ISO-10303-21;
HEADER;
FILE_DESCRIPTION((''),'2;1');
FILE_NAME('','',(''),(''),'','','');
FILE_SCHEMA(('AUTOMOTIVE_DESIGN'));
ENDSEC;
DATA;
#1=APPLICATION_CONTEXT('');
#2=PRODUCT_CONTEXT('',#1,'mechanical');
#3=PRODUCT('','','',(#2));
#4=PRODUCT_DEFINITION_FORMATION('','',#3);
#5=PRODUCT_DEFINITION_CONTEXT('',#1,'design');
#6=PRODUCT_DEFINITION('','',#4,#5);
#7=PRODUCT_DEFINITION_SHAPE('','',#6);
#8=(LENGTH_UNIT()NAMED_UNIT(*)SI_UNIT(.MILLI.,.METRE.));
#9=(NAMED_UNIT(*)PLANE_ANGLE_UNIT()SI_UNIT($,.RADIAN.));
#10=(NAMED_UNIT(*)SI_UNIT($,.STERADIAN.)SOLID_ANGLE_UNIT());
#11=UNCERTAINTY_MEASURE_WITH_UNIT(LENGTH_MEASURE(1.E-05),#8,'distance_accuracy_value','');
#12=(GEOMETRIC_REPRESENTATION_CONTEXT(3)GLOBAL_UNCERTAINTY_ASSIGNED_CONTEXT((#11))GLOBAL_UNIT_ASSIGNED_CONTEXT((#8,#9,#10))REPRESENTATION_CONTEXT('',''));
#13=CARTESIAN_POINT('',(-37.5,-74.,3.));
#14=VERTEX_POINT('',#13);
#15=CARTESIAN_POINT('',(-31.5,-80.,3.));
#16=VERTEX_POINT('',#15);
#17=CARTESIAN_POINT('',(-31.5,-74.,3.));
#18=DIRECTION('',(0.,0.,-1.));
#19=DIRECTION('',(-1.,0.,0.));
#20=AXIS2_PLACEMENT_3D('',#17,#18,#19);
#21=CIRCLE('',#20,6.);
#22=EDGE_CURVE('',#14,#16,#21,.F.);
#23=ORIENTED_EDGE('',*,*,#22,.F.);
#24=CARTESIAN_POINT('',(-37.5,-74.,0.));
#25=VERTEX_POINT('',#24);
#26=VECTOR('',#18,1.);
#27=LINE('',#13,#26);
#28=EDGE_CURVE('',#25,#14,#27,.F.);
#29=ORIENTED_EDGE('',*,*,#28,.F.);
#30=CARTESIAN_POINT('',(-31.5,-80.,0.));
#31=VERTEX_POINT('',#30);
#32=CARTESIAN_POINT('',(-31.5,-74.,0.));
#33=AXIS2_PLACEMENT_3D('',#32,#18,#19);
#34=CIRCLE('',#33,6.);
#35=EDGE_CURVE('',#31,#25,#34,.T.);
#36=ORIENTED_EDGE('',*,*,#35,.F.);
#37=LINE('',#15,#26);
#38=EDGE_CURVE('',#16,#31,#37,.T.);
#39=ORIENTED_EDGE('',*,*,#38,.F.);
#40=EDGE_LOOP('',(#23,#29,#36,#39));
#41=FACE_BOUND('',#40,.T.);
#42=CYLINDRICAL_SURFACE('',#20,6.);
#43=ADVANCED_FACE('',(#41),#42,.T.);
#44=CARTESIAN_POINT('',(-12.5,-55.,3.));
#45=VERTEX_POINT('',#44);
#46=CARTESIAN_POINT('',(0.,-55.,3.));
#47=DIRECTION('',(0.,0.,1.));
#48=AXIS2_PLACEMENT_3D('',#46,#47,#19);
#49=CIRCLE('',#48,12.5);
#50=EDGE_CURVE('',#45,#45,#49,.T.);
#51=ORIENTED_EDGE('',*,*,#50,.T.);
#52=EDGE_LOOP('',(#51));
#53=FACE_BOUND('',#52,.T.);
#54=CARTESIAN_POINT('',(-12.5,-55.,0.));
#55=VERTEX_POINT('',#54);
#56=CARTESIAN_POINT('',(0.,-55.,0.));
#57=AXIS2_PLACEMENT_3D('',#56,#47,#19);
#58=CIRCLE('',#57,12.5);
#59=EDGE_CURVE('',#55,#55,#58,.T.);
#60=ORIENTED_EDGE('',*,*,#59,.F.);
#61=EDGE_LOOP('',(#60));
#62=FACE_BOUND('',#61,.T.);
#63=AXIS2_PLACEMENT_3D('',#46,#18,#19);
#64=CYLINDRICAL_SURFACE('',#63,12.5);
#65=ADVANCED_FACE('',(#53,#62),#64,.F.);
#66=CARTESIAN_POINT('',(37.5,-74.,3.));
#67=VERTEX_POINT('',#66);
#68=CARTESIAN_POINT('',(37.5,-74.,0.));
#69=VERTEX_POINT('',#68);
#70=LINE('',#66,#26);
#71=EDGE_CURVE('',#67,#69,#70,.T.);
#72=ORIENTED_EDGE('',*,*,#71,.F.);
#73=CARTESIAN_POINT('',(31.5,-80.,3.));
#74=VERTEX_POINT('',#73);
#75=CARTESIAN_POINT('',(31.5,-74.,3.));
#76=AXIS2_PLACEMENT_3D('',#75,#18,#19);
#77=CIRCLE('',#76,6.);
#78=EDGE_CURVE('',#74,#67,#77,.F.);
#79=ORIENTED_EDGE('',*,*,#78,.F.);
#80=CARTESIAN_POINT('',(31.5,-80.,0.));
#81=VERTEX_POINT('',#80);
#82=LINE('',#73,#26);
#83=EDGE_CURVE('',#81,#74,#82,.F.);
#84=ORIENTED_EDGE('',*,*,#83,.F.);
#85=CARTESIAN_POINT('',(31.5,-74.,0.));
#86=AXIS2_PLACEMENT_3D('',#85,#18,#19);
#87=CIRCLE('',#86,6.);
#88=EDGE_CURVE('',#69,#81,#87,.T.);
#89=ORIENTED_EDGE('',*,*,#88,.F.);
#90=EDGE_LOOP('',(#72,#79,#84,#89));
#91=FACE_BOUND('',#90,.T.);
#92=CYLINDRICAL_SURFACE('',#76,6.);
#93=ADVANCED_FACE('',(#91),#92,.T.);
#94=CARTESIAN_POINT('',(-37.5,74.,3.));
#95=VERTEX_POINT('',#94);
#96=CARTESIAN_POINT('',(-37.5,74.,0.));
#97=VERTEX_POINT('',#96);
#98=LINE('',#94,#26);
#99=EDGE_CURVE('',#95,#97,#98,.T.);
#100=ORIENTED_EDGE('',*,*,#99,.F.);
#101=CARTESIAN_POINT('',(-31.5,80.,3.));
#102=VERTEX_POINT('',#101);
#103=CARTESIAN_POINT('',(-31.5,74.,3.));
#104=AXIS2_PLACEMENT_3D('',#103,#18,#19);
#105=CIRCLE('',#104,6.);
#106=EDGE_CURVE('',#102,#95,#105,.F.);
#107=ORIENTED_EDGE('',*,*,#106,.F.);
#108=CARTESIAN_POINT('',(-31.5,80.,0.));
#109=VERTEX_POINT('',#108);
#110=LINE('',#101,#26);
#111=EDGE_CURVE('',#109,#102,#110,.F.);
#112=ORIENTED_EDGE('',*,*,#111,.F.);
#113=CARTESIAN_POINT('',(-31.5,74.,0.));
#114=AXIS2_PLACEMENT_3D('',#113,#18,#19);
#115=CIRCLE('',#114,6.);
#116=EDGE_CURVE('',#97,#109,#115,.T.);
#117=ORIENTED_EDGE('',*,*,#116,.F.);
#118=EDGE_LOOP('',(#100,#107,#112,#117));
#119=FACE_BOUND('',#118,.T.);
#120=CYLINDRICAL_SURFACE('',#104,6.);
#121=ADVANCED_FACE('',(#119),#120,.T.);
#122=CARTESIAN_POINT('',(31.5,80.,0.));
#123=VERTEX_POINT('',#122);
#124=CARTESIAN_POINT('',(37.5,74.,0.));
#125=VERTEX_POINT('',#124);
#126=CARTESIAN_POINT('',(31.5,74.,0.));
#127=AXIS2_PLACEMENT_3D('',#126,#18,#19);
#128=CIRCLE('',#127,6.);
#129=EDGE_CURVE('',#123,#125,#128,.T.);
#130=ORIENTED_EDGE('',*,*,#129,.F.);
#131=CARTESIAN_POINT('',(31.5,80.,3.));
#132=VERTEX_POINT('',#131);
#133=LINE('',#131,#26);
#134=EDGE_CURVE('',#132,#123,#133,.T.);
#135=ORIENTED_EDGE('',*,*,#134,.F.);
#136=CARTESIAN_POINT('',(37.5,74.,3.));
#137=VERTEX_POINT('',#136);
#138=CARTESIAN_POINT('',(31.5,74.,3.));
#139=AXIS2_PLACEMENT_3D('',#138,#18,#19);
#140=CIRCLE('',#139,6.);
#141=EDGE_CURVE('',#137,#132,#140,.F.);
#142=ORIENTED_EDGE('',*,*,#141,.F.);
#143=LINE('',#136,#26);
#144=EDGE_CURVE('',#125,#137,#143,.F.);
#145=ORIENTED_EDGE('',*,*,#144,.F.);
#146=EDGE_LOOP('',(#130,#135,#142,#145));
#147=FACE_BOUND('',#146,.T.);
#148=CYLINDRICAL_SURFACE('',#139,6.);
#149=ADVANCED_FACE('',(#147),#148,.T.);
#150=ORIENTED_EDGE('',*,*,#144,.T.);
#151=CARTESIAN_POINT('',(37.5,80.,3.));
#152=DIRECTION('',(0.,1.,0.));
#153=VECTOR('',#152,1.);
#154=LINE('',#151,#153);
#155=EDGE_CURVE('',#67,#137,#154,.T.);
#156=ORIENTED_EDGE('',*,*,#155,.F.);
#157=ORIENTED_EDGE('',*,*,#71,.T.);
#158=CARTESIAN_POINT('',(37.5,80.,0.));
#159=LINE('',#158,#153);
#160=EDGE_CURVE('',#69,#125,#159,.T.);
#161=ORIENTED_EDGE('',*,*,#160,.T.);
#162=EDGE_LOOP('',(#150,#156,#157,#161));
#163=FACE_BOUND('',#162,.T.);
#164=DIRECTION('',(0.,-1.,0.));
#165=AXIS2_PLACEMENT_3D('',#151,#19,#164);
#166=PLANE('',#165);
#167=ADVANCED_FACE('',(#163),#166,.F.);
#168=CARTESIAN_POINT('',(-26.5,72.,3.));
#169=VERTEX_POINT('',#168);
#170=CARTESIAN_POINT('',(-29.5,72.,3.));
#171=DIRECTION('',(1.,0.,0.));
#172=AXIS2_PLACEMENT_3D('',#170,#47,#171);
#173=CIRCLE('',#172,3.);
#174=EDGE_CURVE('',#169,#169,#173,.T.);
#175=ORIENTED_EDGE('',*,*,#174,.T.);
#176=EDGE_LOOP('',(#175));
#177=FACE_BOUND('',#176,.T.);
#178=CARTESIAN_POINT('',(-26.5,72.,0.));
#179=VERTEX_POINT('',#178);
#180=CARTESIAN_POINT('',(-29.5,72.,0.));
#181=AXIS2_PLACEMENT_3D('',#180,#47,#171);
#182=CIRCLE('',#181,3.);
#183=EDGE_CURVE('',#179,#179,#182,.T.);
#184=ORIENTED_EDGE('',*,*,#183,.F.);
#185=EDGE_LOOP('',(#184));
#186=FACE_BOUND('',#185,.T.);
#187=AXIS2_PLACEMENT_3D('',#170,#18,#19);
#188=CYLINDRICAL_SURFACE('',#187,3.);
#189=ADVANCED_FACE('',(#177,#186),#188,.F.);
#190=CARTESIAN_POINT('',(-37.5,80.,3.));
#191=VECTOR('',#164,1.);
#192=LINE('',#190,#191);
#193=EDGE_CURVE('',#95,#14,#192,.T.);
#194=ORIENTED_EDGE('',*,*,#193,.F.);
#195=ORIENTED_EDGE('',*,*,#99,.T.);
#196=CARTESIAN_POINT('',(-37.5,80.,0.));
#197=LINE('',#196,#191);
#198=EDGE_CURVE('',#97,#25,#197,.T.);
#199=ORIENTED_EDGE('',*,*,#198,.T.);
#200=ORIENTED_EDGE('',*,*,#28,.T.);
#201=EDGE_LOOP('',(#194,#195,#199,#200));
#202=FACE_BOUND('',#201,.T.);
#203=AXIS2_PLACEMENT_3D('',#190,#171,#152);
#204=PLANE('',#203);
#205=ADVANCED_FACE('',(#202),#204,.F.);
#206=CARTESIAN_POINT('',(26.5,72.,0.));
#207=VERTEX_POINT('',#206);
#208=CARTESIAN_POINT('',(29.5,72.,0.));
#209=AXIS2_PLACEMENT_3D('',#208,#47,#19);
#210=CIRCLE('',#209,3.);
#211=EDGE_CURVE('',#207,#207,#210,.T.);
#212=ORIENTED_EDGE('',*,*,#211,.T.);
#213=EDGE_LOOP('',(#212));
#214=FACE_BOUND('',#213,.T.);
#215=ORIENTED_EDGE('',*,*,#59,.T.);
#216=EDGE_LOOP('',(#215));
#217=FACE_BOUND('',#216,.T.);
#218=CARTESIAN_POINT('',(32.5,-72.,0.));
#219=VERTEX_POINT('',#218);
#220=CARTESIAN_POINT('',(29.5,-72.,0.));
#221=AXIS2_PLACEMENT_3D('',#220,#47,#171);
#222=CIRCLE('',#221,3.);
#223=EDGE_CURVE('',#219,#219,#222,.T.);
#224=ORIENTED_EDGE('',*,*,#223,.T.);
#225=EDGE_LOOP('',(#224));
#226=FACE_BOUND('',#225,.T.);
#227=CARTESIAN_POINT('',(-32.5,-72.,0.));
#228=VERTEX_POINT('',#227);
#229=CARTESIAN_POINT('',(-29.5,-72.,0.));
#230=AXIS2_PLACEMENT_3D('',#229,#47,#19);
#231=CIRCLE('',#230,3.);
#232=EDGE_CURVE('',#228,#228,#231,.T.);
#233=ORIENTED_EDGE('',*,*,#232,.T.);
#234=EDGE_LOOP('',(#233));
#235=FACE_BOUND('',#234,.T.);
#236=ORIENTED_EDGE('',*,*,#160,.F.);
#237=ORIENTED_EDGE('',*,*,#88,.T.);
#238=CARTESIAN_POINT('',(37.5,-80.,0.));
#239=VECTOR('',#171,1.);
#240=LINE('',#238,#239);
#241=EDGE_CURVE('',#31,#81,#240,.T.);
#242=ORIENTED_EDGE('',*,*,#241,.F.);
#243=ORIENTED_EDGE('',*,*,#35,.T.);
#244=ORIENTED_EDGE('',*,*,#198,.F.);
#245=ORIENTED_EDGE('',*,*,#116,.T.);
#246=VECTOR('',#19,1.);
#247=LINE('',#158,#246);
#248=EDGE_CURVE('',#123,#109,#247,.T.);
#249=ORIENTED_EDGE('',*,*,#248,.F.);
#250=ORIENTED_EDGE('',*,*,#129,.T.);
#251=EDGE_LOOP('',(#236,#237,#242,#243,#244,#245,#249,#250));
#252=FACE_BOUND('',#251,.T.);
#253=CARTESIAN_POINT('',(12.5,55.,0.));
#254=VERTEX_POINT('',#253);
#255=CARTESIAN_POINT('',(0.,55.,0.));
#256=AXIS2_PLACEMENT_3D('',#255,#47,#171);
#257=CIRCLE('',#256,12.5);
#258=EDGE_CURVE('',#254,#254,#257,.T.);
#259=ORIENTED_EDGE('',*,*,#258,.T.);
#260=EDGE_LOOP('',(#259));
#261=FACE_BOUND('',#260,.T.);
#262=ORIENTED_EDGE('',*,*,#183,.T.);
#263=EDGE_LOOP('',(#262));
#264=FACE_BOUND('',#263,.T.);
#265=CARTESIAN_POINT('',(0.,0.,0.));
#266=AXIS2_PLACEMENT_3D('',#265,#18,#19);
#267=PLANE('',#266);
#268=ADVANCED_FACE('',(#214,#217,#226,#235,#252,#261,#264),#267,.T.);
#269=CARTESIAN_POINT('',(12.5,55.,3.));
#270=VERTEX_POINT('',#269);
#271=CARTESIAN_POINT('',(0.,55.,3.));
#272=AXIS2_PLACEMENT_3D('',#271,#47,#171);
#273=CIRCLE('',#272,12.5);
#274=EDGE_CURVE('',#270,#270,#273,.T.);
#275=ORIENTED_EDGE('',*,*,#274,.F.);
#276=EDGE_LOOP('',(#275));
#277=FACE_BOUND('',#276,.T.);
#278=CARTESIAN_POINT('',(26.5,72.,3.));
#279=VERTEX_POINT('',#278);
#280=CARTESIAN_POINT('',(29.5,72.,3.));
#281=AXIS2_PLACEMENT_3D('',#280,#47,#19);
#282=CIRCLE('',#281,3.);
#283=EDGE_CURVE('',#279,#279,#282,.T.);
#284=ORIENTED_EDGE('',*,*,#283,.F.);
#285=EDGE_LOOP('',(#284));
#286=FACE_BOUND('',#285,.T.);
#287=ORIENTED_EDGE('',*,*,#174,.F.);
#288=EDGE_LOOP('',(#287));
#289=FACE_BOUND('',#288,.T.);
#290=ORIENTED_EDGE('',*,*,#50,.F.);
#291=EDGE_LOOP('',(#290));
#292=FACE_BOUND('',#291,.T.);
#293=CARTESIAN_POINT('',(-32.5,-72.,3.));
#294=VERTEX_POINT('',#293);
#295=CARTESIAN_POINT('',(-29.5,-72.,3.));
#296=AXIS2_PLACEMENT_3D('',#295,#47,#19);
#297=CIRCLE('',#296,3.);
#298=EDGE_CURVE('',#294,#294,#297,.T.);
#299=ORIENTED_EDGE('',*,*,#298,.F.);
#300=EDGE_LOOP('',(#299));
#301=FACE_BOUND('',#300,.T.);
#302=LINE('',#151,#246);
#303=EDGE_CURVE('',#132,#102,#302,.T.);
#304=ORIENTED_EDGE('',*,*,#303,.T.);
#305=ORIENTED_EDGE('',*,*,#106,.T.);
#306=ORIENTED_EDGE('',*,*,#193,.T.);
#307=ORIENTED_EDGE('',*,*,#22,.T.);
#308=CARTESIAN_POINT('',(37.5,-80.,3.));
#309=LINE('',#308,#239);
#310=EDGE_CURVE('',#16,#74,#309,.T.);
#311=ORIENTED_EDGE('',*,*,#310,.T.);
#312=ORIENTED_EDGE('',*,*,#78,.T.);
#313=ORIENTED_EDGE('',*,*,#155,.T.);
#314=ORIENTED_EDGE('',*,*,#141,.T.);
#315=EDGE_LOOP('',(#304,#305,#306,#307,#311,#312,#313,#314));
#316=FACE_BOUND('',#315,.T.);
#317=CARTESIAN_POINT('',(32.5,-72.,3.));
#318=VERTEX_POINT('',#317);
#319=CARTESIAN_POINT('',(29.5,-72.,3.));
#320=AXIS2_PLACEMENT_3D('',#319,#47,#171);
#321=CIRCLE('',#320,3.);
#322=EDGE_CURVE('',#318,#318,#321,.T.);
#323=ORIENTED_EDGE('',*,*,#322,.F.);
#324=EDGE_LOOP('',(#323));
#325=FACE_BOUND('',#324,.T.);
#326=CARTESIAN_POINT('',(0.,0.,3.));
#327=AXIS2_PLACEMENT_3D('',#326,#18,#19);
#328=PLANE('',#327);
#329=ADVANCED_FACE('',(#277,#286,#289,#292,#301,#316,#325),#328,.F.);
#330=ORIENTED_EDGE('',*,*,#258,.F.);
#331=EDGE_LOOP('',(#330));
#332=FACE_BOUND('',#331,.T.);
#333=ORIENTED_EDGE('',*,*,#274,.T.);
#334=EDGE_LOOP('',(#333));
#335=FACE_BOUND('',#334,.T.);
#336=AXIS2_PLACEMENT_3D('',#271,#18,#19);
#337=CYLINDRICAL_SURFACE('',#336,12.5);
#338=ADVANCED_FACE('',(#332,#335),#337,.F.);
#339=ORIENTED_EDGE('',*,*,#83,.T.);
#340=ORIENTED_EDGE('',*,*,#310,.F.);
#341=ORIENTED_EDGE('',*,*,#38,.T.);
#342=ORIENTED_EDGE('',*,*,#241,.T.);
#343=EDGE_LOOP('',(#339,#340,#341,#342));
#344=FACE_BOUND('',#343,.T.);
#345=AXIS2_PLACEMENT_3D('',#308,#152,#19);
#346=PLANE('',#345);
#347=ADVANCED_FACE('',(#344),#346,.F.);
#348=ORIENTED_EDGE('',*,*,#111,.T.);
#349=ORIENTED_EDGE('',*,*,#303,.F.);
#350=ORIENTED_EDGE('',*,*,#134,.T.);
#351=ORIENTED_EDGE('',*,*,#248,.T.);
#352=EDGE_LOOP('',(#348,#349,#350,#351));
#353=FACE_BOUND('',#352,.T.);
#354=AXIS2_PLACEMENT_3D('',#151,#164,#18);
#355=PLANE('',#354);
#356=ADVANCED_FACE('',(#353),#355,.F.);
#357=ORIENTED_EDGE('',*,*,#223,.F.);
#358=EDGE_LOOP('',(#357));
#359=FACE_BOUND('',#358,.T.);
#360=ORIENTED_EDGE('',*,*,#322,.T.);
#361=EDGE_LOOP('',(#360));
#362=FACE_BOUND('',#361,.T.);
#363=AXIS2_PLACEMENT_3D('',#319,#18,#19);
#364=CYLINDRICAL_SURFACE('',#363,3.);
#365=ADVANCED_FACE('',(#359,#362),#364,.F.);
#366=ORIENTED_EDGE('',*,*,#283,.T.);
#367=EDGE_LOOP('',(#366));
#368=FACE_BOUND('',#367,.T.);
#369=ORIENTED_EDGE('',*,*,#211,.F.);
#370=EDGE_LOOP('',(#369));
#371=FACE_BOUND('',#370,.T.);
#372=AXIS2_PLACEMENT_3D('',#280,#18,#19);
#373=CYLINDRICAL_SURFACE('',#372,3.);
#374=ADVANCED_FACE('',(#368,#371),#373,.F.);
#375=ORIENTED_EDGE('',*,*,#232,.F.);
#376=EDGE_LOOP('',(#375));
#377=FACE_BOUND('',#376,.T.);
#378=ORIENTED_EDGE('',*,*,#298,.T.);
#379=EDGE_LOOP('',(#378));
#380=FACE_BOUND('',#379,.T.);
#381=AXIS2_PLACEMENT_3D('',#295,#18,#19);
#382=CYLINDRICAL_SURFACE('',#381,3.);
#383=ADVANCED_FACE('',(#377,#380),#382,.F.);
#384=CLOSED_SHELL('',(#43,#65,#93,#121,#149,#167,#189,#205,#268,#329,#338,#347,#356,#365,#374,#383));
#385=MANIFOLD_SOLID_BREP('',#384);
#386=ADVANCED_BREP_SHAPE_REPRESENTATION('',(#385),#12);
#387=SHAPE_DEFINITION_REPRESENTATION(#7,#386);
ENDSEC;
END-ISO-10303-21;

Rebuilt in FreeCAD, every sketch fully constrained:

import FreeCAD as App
import Part
import Sketcher
Q = App.Units.Quantity


def edges_at(feature, points):
    """Names of the edges that pass closest to the given points."""
    edges = feature.Shape.Edges
    near = lambda p: min(range(len(edges)), key=lambda i: edges[i].distToShape(Part.Vertex(*p))[0])
    return sorted({f"Edge{near(p) + 1}" for p in points})

doc = App.newDocument("Part")
body = doc.addObject("PartDesign::Body", "Body")

# Sketch on XY plane
sketch1 = body.newObject("Sketcher::SketchObject", "Sketch")
sketch1.AttachmentSupport = (doc.getObject("XY_Plane"), [""])
sketch1.MapMode = "FlatFace"
sketch1.addGeometry([
    Part.LineSegment(App.Vector(-37.5, 80, 0), App.Vector(-37.5, -80, 0)),  # 0
    Part.LineSegment(App.Vector(-37.5, -80, 0), App.Vector(37.5, -80, 0)),  # 1
    Part.LineSegment(App.Vector(37.5, -80, 0), App.Vector(37.5, 80, 0)),  # 2
    Part.LineSegment(App.Vector(37.5, 80, 0), App.Vector(-37.5, 80, 0)),  # 3
    Part.Circle(App.Vector(-29.5, -72, 0), App.Vector(0, 0, 1), 3),  # 4
    Part.Circle(App.Vector(0, -55, 0), App.Vector(0, 0, 1), 12.5),  # 5
    Part.Circle(App.Vector(29.5, -72, 0), App.Vector(0, 0, 1), 3),  # 6
    Part.Circle(App.Vector(-29.5, 72, 0), App.Vector(0, 0, 1), 3),  # 7
    Part.Circle(App.Vector(0, 55, 0), App.Vector(0, 0, 1), 12.5),  # 8
    Part.Circle(App.Vector(29.5, 72, 0), App.Vector(0, 0, 1), 3),  # 9
], False)
sketch1.addConstraint([
    Sketcher.Constraint("Coincident", 0, 2, 1, 1),
    Sketcher.Constraint("Coincident", 1, 2, 2, 1),
    Sketcher.Constraint("Coincident", 2, 2, 3, 1),
    Sketcher.Constraint("Coincident", 3, 2, 0, 1),
    Sketcher.Constraint("Vertical", 0),
    Sketcher.Constraint("Horizontal", 1),
    Sketcher.Constraint("Vertical", 2),
    Sketcher.Constraint("Horizontal", 3),
    Sketcher.Constraint("Equal", 4, 6),
    Sketcher.Constraint("Equal", 6, 7),
    Sketcher.Constraint("Equal", 5, 8),
    Sketcher.Constraint("Equal", 7, 9),
    Sketcher.Constraint("Symmetric", 6, 3, 7, 3, -1, 1),
    Sketcher.Constraint("Symmetric", 5, 3, 8, 3, -1, 1),
    Sketcher.Constraint("Symmetric", 4, 3, 9, 3, -1, 1),
    Sketcher.Constraint("Symmetric", 0, 2, 2, 2, -1, 1),
    Sketcher.Constraint("Symmetric", 4, 3, 6, 3, -2),
    Sketcher.Constraint("PointOnObject", 5, 3, -2),
    Sketcher.Constraint("Diameter", 4, Q("6 mm")),
    Sketcher.Constraint("Diameter", 5, Q("25 mm")),
    Sketcher.Constraint("DistanceX", 1, 1, 1, 2, Q("75 mm")),
    Sketcher.Constraint("DistanceY", 0, 2, 0, 1, Q("160 mm")),
    Sketcher.Constraint("DistanceY", 4, 3, -1, 1, Q("72 mm")),
    Sketcher.Constraint("DistanceY", 5, 3, -1, 1, Q("55 mm")),
    Sketcher.Constraint("DistanceX", 4, 3, 6, 3, Q("59 mm")),
])
pad1 = body.newObject("PartDesign::Pad", "Pad")
pad1.Profile = sketch1
pad1.Length = 3
doc.recompute()

fillet = body.newObject("PartDesign::Fillet", "Fillet")
fillet.Base = (pad1, edges_at(pad1, [
    (-37.5, 80, 1.5),
    (37.5, 80, 1.5),
    (37.5, -80, 1.5),
    (-37.5, -80, 1.5),
]))
fillet.Radius = 6

doc.recompute()
